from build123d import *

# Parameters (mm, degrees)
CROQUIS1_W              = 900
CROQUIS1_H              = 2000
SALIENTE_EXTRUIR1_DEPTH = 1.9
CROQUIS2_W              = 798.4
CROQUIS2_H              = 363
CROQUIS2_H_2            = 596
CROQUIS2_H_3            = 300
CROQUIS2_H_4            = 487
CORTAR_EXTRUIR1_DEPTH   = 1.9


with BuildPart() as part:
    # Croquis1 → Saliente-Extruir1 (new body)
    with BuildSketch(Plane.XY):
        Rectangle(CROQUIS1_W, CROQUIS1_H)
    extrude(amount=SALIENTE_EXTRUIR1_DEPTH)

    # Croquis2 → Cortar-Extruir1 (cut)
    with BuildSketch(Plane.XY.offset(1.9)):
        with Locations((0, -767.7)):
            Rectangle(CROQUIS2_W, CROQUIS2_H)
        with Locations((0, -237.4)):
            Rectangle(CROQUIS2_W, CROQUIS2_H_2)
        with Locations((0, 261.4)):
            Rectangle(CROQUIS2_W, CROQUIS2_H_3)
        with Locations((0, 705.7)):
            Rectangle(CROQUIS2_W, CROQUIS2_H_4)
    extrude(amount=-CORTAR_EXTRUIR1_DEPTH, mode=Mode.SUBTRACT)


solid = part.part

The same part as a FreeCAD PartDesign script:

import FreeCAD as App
import Part
import Sketcher
Q = App.Units.Quantity


def add_polygon(sketch, points):
    """Adds a closed chain of lines whose ends are joined by coincident constraints."""
    first, n = sketch.GeometryCount, len(points)
    for a, b in zip(points, points[1:] + points[:1]):
        sketch.addGeometry(Part.LineSegment(App.Vector(*a, 0), App.Vector(*b, 0)), False)
    for i in range(n):
        sketch.addConstraint(Sketcher.Constraint("Coincident", first + i, 2, first + (i + 1) % n, 1))

doc = App.newDocument("Part")
params = doc.addObject("Spreadsheet::Sheet", "Params")
for row, (alias, value) in enumerate([
    ("sketch1_width", "900 mm"),
    ("sketch1_height", "2000 mm"),
    ("pad1_length", "1.9 mm"),
    ("sketch2_height", "363 mm"),
    ("sketch2_height2", "596 mm"),
    ("sketch2_height3", "300 mm"),
    ("sketch2_height4", "487 mm"),
    ("sketch2_width", "798.4 mm"),
    ("pocket1_length", "1.9 mm"),
], start=1):
    params.set(f"A{row}", alias)
    params.set(f"B{row}", "=" + value)
    params.setAlias(f"B{row}", alias)

body = doc.addObject("PartDesign::Body", "Body")

# Sketch on XY plane
sketch1 = body.newObject("Sketcher::SketchObject", "Sketch")
sketch1.AttachmentSupport = (doc.getObject("XY_Plane"), [""])
sketch1.MapMode = "FlatFace"
add_polygon(sketch1, [(-450, 1000), (-450, -1000), (450, -1000), (450, 1000)])  # lines 0-3
sketch1.addConstraint([
    Sketcher.Constraint("Vertical", 0),
    Sketcher.Constraint("Horizontal", 1),
    Sketcher.Constraint("Vertical", 2),
    Sketcher.Constraint("Horizontal", 3),
    Sketcher.Constraint("Symmetric", 0, 2, 2, 2, -1, 1),
    Sketcher.Constraint("DistanceX", 1, 1, 1, 2, Q("900 mm")),
    Sketcher.Constraint("DistanceY", 0, 2, 0, 1, Q("2000 mm")),
])
sketch1.setExpression("Constraints[9]", "Params.sketch1_width")
sketch1.setExpression("Constraints[10]", "Params.sketch1_height")
pad1 = body.newObject("PartDesign::Pad", "Pad")
pad1.Profile = sketch1
pad1.setExpression("Length", "Params.pad1_length")

# Sketch on XY plane
sketch2 = body.newObject("Sketcher::SketchObject", "Sketch001")
sketch2.AttachmentSupport = (doc.getObject("XY_Plane"), [""])
sketch2.MapMode = "FlatFace"
sketch2.AttachmentOffset = App.Placement(App.Vector(0, 0, 1.9), App.Rotation())
add_polygon(sketch2, [(-399, -586), (-399, -949), (399, -949), (399, -586)])  # lines 0-3
add_polygon(sketch2, [(-399, 61), (-399, -535), (399, -535), (399, 61)])  # lines 4-7
add_polygon(sketch2, [(-399, 411), (-399, 111), (399, 111), (399, 411)])  # lines 8-11
add_polygon(sketch2, [(-399, 949), (-399, 462), (399, 462), (399, 949)])  # lines 12-15
sketch2.addConstraint([
    Sketcher.Constraint("Vertical", 0),
    Sketcher.Constraint("Horizontal", 1),
    Sketcher.Constraint("Vertical", 2),
    Sketcher.Constraint("Horizontal", 3),
    Sketcher.Constraint("Vertical", 4),
    Sketcher.Constraint("Horizontal", 5),
    Sketcher.Constraint("Vertical", 6),
    Sketcher.Constraint("Horizontal", 7),
    Sketcher.Constraint("Vertical", 8),
    Sketcher.Constraint("Horizontal", 9),
    Sketcher.Constraint("Vertical", 10),
    Sketcher.Constraint("Horizontal", 11),
    Sketcher.Constraint("Vertical", 12),
    Sketcher.Constraint("Horizontal", 13),
    Sketcher.Constraint("Vertical", 14),
    Sketcher.Constraint("Horizontal", 15),
    Sketcher.Constraint("Symmetric", 0, 2, 14, 2, -1, 1),
    Sketcher.Constraint("Vertical", 3, 2, 4, 2),
    Sketcher.Constraint("Vertical", 2, 2, 5, 2),
    Sketcher.Constraint("Vertical", 7, 2, 8, 2),
    Sketcher.Constraint("Vertical", 6, 2, 9, 2),
    Sketcher.Constraint("Vertical", 11, 2, 12, 2),
    Sketcher.Constraint("Vertical", 10, 2, 13, 2),
    Sketcher.Constraint("DistanceY", 0, 2, 0, 1, Q("363 mm")),
    Sketcher.Constraint("DistanceY", 4, 2, 4, 1, Q("596 mm")),
    Sketcher.Constraint("DistanceY", 8, 2, 8, 1, Q("300 mm")),
    Sketcher.Constraint("DistanceY", 12, 2, 12, 1, Q("487 mm")),
    Sketcher.Constraint("DistanceX", 1, 1, 1, 2, Q("798.4 mm")),
    Sketcher.Constraint("DistanceY", 0, 2, -1, 1, Q("949.2 mm")),
    Sketcher.Constraint("DistanceY", 4, 2, -1, 1, Q("535.4 mm")),
    Sketcher.Constraint("DistanceY", -1, 1, 8, 2, Q("111.4 mm")),
])
sketch2.setExpression("Constraints[39]", "Params.sketch2_height")
sketch2.setExpression("Constraints[40]", "Params.sketch2_height2")
sketch2.setExpression("Constraints[41]", "Params.sketch2_height3")
sketch2.setExpression("Constraints[42]", "Params.sketch2_height4")
sketch2.setExpression("Constraints[43]", "Params.sketch2_width")
pocket1 = body.newObject("PartDesign::Pocket", "Pocket")
pocket1.Profile = sketch2
pocket1.setExpression("Length", "Params.pocket1_length")

doc.recompute()
